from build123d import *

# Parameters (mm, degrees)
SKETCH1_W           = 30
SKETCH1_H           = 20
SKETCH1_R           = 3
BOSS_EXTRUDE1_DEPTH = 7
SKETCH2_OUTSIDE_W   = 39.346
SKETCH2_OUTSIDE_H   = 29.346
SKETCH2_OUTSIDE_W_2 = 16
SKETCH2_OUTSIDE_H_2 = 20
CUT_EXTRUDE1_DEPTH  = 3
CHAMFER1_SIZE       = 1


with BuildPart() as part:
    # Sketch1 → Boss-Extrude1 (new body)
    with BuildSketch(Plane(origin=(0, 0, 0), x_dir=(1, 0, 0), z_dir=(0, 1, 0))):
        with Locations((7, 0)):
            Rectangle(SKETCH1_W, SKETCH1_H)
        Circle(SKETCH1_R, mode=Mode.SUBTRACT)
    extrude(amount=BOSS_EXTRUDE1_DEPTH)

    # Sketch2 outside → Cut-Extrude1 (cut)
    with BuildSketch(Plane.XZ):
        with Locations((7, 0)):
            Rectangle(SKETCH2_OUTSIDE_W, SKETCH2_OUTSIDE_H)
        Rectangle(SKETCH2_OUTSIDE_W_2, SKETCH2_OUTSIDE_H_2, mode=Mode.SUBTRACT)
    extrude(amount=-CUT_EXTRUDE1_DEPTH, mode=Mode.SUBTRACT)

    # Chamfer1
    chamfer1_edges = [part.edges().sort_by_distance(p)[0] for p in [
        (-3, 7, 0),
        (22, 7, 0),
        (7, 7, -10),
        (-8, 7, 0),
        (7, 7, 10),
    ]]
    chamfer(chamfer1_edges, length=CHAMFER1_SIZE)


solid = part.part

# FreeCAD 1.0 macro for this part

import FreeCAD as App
import Part
import Sketcher
Q = App.Units.Quantity


def edges_at(feature, points):
    """Names of the edges that pass closest to the given points."""
    edges = feature.Shape.Edges
    near = lambda p: min(range(len(edges)), key=lambda i: edges[i].distToShape(Part.Vertex(*p))[0])
    return sorted({f"Edge{near(p) + 1}" for p in points})

doc = App.newDocument("Part")
body = doc.addObject("PartDesign::Body", "Body")

sketch1 = body.newObject("Sketcher::SketchObject", "Sketch")
sketch1.AttachmentSupport = (doc.getObject("XZ_Plane"), [""])
sketch1.MapMode = "FlatFace"
sketch1.addGeometry(Part.LineSegment(App.Vector(-8, -10, 0), App.Vector(-8, 10, 0)), False)
sketch1.addGeometry(Part.LineSegment(App.Vector(-8, 10, 0), App.Vector(22, 10, 0)), False)
sketch1.addGeometry(Part.LineSegment(App.Vector(22, 10, 0), App.Vector(22, -10, 0)), False)
sketch1.addGeometry(Part.LineSegment(App.Vector(22, -10, 0), App.Vector(-8, -10, 0)), False)
sketch1.addGeometry(Part.Circle(App.Vector(0, 0, 0), App.Vector(0, 0, 1), 3), False)
sketch1.addConstraint(Sketcher.Constraint("Coincident", 0, 2, 1, 1))
sketch1.addConstraint(Sketcher.Constraint("Coincident", 1, 2, 2, 1))
sketch1.addConstraint(Sketcher.Constraint("Coincident", 2, 2, 3, 1))
sketch1.addConstraint(Sketcher.Constraint("Coincident", 3, 2, 0, 1))
sketch1.addConstraint(Sketcher.Constraint("Vertical", 0))
sketch1.addConstraint(Sketcher.Constraint("Horizontal", 1))
sketch1.addConstraint(Sketcher.Constraint("Vertical", 2))
sketch1.addConstraint(Sketcher.Constraint("Horizontal", 3))
sketch1.addConstraint(Sketcher.Constraint("Coincident", 4, 3, -1, 1))
sketch1.addConstraint(Sketcher.Constraint("Diameter", 4, Q("6 mm")))
sketch1.addConstraint(Sketcher.Constraint("DistanceX", 1, 1, 1, 2, Q("30 mm")))
sketch1.addConstraint(Sketcher.Constraint("DistanceY", 0, 1, 0, 2, Q("20 mm")))
sketch1.addConstraint(Sketcher.Constraint("DistanceX", 0, 2, -1, 1, Q("8 mm")))
sketch1.addConstraint(Sketcher.Constraint("DistanceY", -1, 1, 0, 2, Q("10 mm")))
pad1 = body.newObject("PartDesign::Pad", "Pad")
pad1.Profile = sketch1
pad1.Length = 7
pad1.Reversed = True

sketch2 = body.newObject("Sketcher::SketchObject", "Sketch001")
sketch2.AttachmentSupport = (doc.getObject("XZ_Plane"), [""])
sketch2.MapMode = "FlatFace"
sketch2.addGeometry(Part.LineSegment(App.Vector(-13, 15, 0), App.Vector(-13, -15, 0)), False)
sketch2.addGeometry(Part.LineSegment(App.Vector(-13, -15, 0), App.Vector(27, -15, 0)), False)
sketch2.addGeometry(Part.LineSegment(App.Vector(27, -15, 0), App.Vector(27, 15, 0)), False)
sketch2.addGeometry(Part.LineSegment(App.Vector(27, 15, 0), App.Vector(-13, 15, 0)), False)
sketch2.addGeometry(Part.LineSegment(App.Vector(8, -10, 0), App.Vector(-8, -10, 0)), False)
sketch2.addGeometry(Part.LineSegment(App.Vector(-8, -10, 0), App.Vector(-8, 10, 0)), False)
sketch2.addGeometry(Part.LineSegment(App.Vector(-8, 10, 0), App.Vector(8, 10, 0)), False)
sketch2.addGeometry(Part.LineSegment(App.Vector(8, 10, 0), App.Vector(8, -10, 0)), False)
sketch2.addConstraint(Sketcher.Constraint("Coincident", 0, 2, 1, 1))
sketch2.addConstraint(Sketcher.Constraint("Coincident", 1, 2, 2, 1))
sketch2.addConstraint(Sketcher.Constraint("Coincident", 2, 2, 3, 1))
sketch2.addConstraint(Sketcher.Constraint("Coincident", 3, 2, 0, 1))
sketch2.addConstraint(Sketcher.Constraint("Coincident", 4, 2, 5, 1))
sketch2.addConstraint(Sketcher.Constraint("Coincident", 5, 2, 6, 1))
sketch2.addConstraint(Sketcher.Constraint("Coincident", 6, 2, 7, 1))
sketch2.addConstraint(Sketcher.Constraint("Coincident", 7, 2, 4, 1))
sketch2.addConstraint(Sketcher.Constraint("Vertical", 0))
sketch2.addConstraint(Sketcher.Constraint("Horizontal", 1))
sketch2.addConstraint(Sketcher.Constraint("Vertical", 2))
sketch2.addConstraint(Sketcher.Constraint("Horizontal", 3))
sketch2.addConstraint(Sketcher.Constraint("Horizontal", 4))
sketch2.addConstraint(Sketcher.Constraint("Vertical", 5))
sketch2.addConstraint(Sketcher.Constraint("Horizontal", 6))
sketch2.addConstraint(Sketcher.Constraint("Vertical", 7))
sketch2.addConstraint(Sketcher.Constraint("Symmetric", 4, 2, 6, 2, -1, 1))
sketch2.addConstraint(Sketcher.Constraint("DistanceX", 4, 2, 4, 1, Q("16 mm")))
sketch2.addConstraint(Sketcher.Constraint("DistanceY", 5, 1, 5, 2, Q("20 mm")))
sketch2.addConstraint(Sketcher.Constraint("DistanceX", 1, 1, 1, 2, Q("39.346 mm")))
sketch2.addConstraint(Sketcher.Constraint("DistanceY", 0, 2, 0, 1, Q("29.346 mm")))
sketch2.addConstraint(Sketcher.Constraint("DistanceX", 0, 2, -1, 1, Q("12.673 mm")))
sketch2.addConstraint(Sketcher.Constraint("DistanceY", 0, 2, -1, 1, Q("14.673 mm")))
pocket1 = body.newObject("PartDesign::Pocket", "Pocket")
pocket1.Profile = sketch2
pocket1.Length = 3
doc.recompute()

chamfer = body.newObject("PartDesign::Chamfer", "Chamfer")
chamfer.Base = (pocket1, edges_at(pocket1, [
    (-3, 7, 0),
    (22, 7, 0),
    (7, 7, -10),
    (-8, 7, 0),
    (7, 7, 10),
]))
chamfer.Size = 1

doc.recompute()
